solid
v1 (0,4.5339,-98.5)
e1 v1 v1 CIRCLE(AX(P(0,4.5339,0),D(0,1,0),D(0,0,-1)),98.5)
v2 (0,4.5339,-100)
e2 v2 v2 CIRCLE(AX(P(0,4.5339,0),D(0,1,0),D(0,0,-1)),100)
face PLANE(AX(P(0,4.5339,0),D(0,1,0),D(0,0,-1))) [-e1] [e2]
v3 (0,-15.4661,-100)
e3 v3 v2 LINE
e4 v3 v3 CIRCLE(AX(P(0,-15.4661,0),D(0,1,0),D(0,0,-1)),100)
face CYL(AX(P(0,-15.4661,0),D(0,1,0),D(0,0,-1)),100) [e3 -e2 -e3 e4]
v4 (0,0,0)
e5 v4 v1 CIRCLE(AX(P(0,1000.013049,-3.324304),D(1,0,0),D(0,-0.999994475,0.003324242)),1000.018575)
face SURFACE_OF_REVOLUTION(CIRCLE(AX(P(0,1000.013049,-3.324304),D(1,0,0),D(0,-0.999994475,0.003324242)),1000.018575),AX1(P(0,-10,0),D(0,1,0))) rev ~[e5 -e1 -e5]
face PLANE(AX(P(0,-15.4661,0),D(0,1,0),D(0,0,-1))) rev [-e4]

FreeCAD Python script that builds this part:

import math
import FreeCAD as App
import Part
import Sketcher
Q = App.Units.Quantity

doc = App.newDocument("Part")
params = doc.addObject("Spreadsheet::Sheet", "Params")
for row, (alias, value) in enumerate([
    ("sketch1_width", "20 mm"),
    ("sketch1_height", "100 mm"),
    ("sketch1_height2", "1.5 mm"),
    ("revolution_angle", "360 deg"),
], start=1):
    params.set(f"A{row}", alias)
    params.set(f"B{row}", "=" + value)
    params.setAlias(f"B{row}", alias)

body = doc.addObject("PartDesign::Body", "Body")

# Sketch on YZ plane
sketch1 = body.newObject("Sketcher::SketchObject", "Sketch")
sketch1.AttachmentSupport = (doc.getObject("YZ_Plane"), [""])
sketch1.MapMode = "FlatFace"
sketch1.addGeometry([
    Part.LineSegment(App.Vector(0, 0, 0), App.Vector(-15.5, 0, 0)),  # 0
    Part.LineSegment(App.Vector(-15.5, 0, 0), App.Vector(-15.5, -100, 0)),  # 1
    Part.LineSegment(App.Vector(-15.5, -100, 0), App.Vector(4.5, -100, 0)),  # 2
    Part.LineSegment(App.Vector(4.5, -100, 0), App.Vector(4.5, -98.5, 0)),  # 3
    Part.ArcOfCircle(Part.Circle(App.Vector(1000, -3.3, 0), App.Vector(0, 0, 1), 1000), math.radians(179.81), math.radians(185.46)),  # 4
], False)
sketch1.addConstraint([
    Sketcher.Constraint("Coincident", 0, 2, 1, 1),
    Sketcher.Constraint("Coincident", 1, 2, 2, 1),
    Sketcher.Constraint("Coincident", 2, 2, 3, 1),
    Sketcher.Constraint("Coincident", 3, 2, 4, 2),
    Sketcher.Constraint("Coincident", 4, 1, 0, 1),
    Sketcher.Constraint("Horizontal", 0),
    Sketcher.Constraint("Vertical", 1),
    Sketcher.Constraint("Horizontal", 2),
    Sketcher.Constraint("Vertical", 3),
    Sketcher.Constraint("PointOnObject", 0, 2, -1),
    Sketcher.Constraint("DistanceX", 2, 1, 2, 2, Q("20 mm")),
    Sketcher.Constraint("DistanceY", 1, 2, 1, 1, Q("100 mm")),
    Sketcher.Constraint("DistanceY", 3, 1, 3, 2, Q("1.5 mm")),
    Sketcher.Constraint("Radius", 4, Q("1000.0186 mm")),
    Sketcher.Constraint("DistanceX", 0, 2, 0, 1, Q("15.466 mm")),
    Sketcher.Constraint("DistanceX", -1, 1, 4, 3, Q("1000.013 mm")),
])
sketch1.setExpression("Constraints[10]", "Params.sketch1_width")
sketch1.setExpression("Constraints[11]", "Params.sketch1_height")
sketch1.setExpression("Constraints[12]", "Params.sketch1_height2")
revolution = body.newObject("PartDesign::Revolution", "Revolution")
revolution.Profile = sketch1
revolution.ReferenceAxis = (sketch1, ["H_Axis"])
revolution.setExpression("Angle", "Params.revolution_angle")

doc.recompute()
